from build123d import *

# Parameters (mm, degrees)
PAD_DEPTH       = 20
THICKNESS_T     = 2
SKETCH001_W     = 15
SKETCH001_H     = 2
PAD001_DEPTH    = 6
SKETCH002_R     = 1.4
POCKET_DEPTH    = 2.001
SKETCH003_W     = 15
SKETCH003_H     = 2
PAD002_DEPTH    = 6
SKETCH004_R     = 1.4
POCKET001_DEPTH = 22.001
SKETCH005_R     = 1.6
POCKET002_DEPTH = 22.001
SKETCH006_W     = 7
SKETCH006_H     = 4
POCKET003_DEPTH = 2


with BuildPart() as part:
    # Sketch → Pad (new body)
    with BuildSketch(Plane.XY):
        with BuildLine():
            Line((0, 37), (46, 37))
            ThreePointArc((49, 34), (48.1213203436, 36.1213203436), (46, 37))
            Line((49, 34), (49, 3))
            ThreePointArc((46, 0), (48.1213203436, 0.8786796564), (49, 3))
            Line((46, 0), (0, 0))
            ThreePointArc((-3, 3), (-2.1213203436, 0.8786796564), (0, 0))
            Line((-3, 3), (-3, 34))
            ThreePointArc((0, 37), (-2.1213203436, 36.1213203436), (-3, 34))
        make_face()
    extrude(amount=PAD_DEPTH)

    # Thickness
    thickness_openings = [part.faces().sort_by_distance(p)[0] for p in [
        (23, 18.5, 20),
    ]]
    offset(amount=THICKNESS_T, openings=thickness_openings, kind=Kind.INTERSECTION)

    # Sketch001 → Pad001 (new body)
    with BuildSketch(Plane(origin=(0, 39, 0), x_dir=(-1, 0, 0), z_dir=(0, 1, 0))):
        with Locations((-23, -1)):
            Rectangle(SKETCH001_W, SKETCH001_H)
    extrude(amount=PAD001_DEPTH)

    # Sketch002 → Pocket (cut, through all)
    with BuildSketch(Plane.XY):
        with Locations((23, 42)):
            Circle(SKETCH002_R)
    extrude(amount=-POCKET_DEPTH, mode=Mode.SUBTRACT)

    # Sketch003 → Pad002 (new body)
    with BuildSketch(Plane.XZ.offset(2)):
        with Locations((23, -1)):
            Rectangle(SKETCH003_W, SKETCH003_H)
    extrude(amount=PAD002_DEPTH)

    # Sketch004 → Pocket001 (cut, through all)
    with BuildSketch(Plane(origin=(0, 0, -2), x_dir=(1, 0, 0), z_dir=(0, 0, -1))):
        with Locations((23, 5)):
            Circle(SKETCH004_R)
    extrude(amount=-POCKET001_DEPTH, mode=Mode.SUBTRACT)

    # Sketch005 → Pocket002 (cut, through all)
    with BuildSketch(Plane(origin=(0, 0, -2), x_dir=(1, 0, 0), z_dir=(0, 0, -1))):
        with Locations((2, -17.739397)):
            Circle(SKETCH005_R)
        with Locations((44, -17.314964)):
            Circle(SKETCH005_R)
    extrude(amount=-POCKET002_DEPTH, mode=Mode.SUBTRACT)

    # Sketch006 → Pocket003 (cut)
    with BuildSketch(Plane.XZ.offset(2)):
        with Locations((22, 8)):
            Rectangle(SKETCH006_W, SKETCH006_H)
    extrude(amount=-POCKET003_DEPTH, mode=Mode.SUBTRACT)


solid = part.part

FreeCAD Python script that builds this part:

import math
import FreeCAD as App
import Part
import Sketcher
from FreeCAD import Vector
Q = App.Units.Quantity


def faces_at(feature, points):
    """Names of the faces that lie closest to the given points."""
    faces = feature.Shape.Faces
    near = lambda p: min(range(len(faces)), key=lambda i: faces[i].distToShape(Part.Vertex(*p))[0])
    return sorted({f"Face{near(p) + 1}" for p in points})


def add_polygon(sketch, points):
    """Adds a closed chain of lines whose ends are joined by coincident constraints."""
    first, n = sketch.GeometryCount, len(points)
    for a, b in zip(points, points[1:] + points[:1]):
        sketch.addGeometry(Part.LineSegment(App.Vector(*a, 0), App.Vector(*b, 0)), False)
    for i in range(n):
        sketch.addConstraint(Sketcher.Constraint("Coincident", first + i, 2, first + (i + 1) % n, 1))

doc = App.newDocument("Part")
body = doc.addObject("PartDesign::Body", "Body")

# Sketch on XY plane
sketch1 = body.newObject("Sketcher::SketchObject", "Sketch")
sketch1.AttachmentSupport = (doc.getObject("XY_Plane"), [""])
sketch1.MapMode = "FlatFace"
sketch1.addGeometry([
    Part.LineSegment(Vector(46, 37, 0), Vector(0, 37, 0)),  # 0
    Part.ArcOfCircle(Part.Circle(Vector(0, 34, 0), Vector(0, 0, 1), 3), math.radians(90), math.radians(180)),  # 1
    Part.LineSegment(Vector(-3, 34, 0), Vector(-3, 3, 0)),  # 2
    Part.ArcOfCircle(Part.Circle(Vector(0, 3, 0), Vector(0, 0, 1), 3), math.radians(180), math.radians(270)),  # 3
    Part.LineSegment(Vector(0, 0, 0), Vector(46, 0, 0)),  # 4
    Part.ArcOfCircle(Part.Circle(Vector(46, 3, 0), Vector(0, 0, 1), 3), math.radians(-90), math.radians(0)),  # 5
    Part.LineSegment(Vector(49, 3, 0), Vector(49, 34, 0)),  # 6
    Part.ArcOfCircle(Part.Circle(Vector(46, 34, 0), Vector(0, 0, 1), 3), math.radians(0), math.radians(90)),  # 7
], False)
sketch1.addConstraint([
    Sketcher.Constraint("Tangent", 0, 2, 1, 1),
    Sketcher.Constraint("Tangent", 1, 2, 2, 1),
    Sketcher.Constraint("Tangent", 2, 2, 3, 1),
    Sketcher.Constraint("Tangent", 3, 2, 4, 1),
    Sketcher.Constraint("Tangent", 4, 2, 5, 1),
    Sketcher.Constraint("Tangent", 5, 2, 6, 1),
    Sketcher.Constraint("Tangent", 6, 2, 7, 1),
    Sketcher.Constraint("Tangent", 7, 2, 0, 1),
    Sketcher.Constraint("Horizontal", 0),
    Sketcher.Constraint("Vertical", 2),
    Sketcher.Constraint("Horizontal", 4),
    Sketcher.Constraint("Vertical", 6),
    Sketcher.Constraint("Coincident", 3, 2, -1, 1),
    Sketcher.Constraint("Equal", 1, 3),
    Sketcher.Constraint("Equal", 3, 5),
    Sketcher.Constraint("Equal", 5, 7),
    Sketcher.Constraint("Radius", 1, Q("3 mm")),
    Sketcher.Constraint("DistanceX", 0, 2, 0, 1, Q("46 mm")),
    Sketcher.Constraint("DistanceY", 2, 2, 2, 1, Q("31 mm")),
])
pad1 = body.newObject("PartDesign::Pad", "Pad")
pad1.Profile = sketch1
pad1.Length = 20
doc.recompute()

thickness = body.newObject("PartDesign::Thickness", "Thickness")
thickness.Base = (pad1, faces_at(pad1, [(23, 18.5, 20)]))
thickness.Value = 2
thickness.Reversed = False
thickness.Join = "Intersection"

# Sketch on XZ plane
sketch2 = body.newObject("Sketcher::SketchObject", "Sketch001")
sketch2.AttachmentSupport = (doc.getObject("XZ_Plane"), [""])
sketch2.MapMode = "FlatFace"
sketch2.AttachmentOffset = App.Placement(Vector(0, 0, -39), App.Rotation())
add_polygon(sketch2, [(30.5, 0), (30.5, -2), (15.5, -2), (15.5, 0)])  # lines 0-3
sketch2.addConstraint([
    Sketcher.Constraint("Vertical", 0),
    Sketcher.Constraint("Horizontal", 1),
    Sketcher.Constraint("Vertical", 2),
    Sketcher.Constraint("Horizontal", 3),
    Sketcher.Constraint("PointOnObject", 2, 2, -1),
    Sketcher.Constraint("DistanceX", 1, 2, 1, 1, Q("15 mm")),
    Sketcher.Constraint("DistanceY", 0, 2, 0, 1, Q("2 mm")),
    Sketcher.Constraint("DistanceX", -1, 1, 0, 2, Q("30.5 mm")),
])
pad2 = body.newObject("PartDesign::Pad", "Pad001")
pad2.Profile = sketch2
pad2.Length = 6
pad2.Reversed = True

# Sketch on XY plane
sketch3 = body.newObject("Sketcher::SketchObject", "Sketch002")
sketch3.AttachmentSupport = (doc.getObject("XY_Plane"), [""])
sketch3.MapMode = "FlatFace"
sketch3.addGeometry(Part.Circle(Vector(23, 42, 0), Vector(0, 0, 1), 1.4), False)
sketch3.addConstraint([
    Sketcher.Constraint("Diameter", 0, Q("2.8 mm")),
    Sketcher.Constraint("DistanceX", -1, 1, 0, 3, Q("23 mm")),
    Sketcher.Constraint("DistanceY", -1, 1, 0, 3, Q("42 mm")),
])
pocket1 = body.newObject("PartDesign::Pocket", "Pocket")
pocket1.Profile = sketch3
pocket1.Type = "ThroughAll"

# Sketch on XZ plane
sketch4 = body.newObject("Sketcher::SketchObject", "Sketch003")
sketch4.AttachmentSupport = (doc.getObject("XZ_Plane"), [""])
sketch4.MapMode = "FlatFace"
sketch4.AttachmentOffset = App.Placement(Vector(0, 0, 2), App.Rotation())
add_polygon(sketch4, [(15.5, 0), (15.5, -2), (30.5, -2), (30.5, 0)])  # lines 0-3
sketch4.addConstraint([
    Sketcher.Constraint("Vertical", 0),
    Sketcher.Constraint("Horizontal", 1),
    Sketcher.Constraint("Vertical", 2),
    Sketcher.Constraint("Horizontal", 3),
    Sketcher.Constraint("PointOnObject", 2, 2, -1),
    Sketcher.Constraint("DistanceX", 1, 1, 1, 2, Q("15 mm")),
    Sketcher.Constraint("DistanceY", 0, 2, 0, 1, Q("2 mm")),
    Sketcher.Constraint("DistanceX", -1, 1, 0, 2, Q("15.5 mm")),
])
pad3 = body.newObject("PartDesign::Pad", "Pad002")
pad3.Profile = sketch4
pad3.Length = 6

# Sketch on XY plane
sketch5 = body.newObject("Sketcher::SketchObject", "Sketch004")
sketch5.AttachmentSupport = (doc.getObject("XY_Plane"), [""])
sketch5.MapMode = "FlatFace"
sketch5.AttachmentOffset = App.Placement(Vector(0, 0, -2), App.Rotation())
sketch5.addGeometry(Part.Circle(Vector(23, -5, 0), Vector(0, 0, 1), 1.4), False)
sketch5.addConstraint([
    Sketcher.Constraint("Diameter", 0, Q("2.8 mm")),
    Sketcher.Constraint("DistanceX", -1, 1, 0, 3, Q("23 mm")),
    Sketcher.Constraint("DistanceY", 0, 3, -1, 1, Q("5 mm")),
])
pocket2 = body.newObject("PartDesign::Pocket", "Pocket001")
pocket2.Profile = sketch5
pocket2.Type = "ThroughAll"
pocket2.Reversed = True

# Sketch on XY plane
sketch6 = body.newObject("Sketcher::SketchObject", "Sketch005")
sketch6.AttachmentSupport = (doc.getObject("XY_Plane"), [""])
sketch6.MapMode = "FlatFace"
sketch6.AttachmentOffset = App.Placement(Vector(0, 0, -2), App.Rotation())
sketch6.addGeometry([
    Part.Circle(Vector(2, 17.739397, 0), Vector(0, 0, 1), 1.6),
    Part.Circle(Vector(44, 17.314964, 0), Vector(0, 0, 1), 1.6),
], False)
sketch6.addConstraint([
    Sketcher.Constraint("Equal", 0, 1),
    Sketcher.Constraint("Diameter", 0, Q("3.2 mm")),
    Sketcher.Constraint("DistanceX", -1, 1, 0, 3, Q("2 mm")),
    Sketcher.Constraint("DistanceX", -1, 1, 1, 3, Q("44 mm")),
    Sketcher.Constraint("DistanceY", -1, 1, 0, 3, Q("17.739397 mm")),
    Sketcher.Constraint("DistanceY", -1, 1, 1, 3, Q("17.314964 mm")),
])
pocket3 = body.newObject("PartDesign::Pocket", "Pocket002")
pocket3.Profile = sketch6
pocket3.Type = "ThroughAll"
pocket3.Reversed = True

# Sketch on XZ plane
sketch7 = body.newObject("Sketcher::SketchObject", "Sketch006")
sketch7.AttachmentSupport = (doc.getObject("XZ_Plane"), [""])
sketch7.MapMode = "FlatFace"
sketch7.AttachmentOffset = App.Placement(Vector(0, 0, 2), App.Rotation())
add_polygon(sketch7, [(18.5, 10), (18.5, 6), (25.5, 6), (25.5, 10)])  # lines 0-3
sketch7.addConstraint([
    Sketcher.Constraint("Vertical", 0),
    Sketcher.Constraint("Horizontal", 1),
    Sketcher.Constraint("Vertical", 2),
    Sketcher.Constraint("Horizontal", 3),
    Sketcher.Constraint("DistanceX", 1, 1, 1, 2, Q("7 mm")),
    Sketcher.Constraint("DistanceY", 0, 2, 0, 1, Q("4 mm")),
    Sketcher.Constraint("DistanceY", -1, 1, 0, 2, Q("6 mm")),
    Sketcher.Constraint("DistanceX", -1, 1, 0, 2, Q("18.5 mm")),
])
pocket4 = body.newObject("PartDesign::Pocket", "Pocket003")
pocket4.Profile = sketch7
pocket4.Length = 2

doc.recompute()
